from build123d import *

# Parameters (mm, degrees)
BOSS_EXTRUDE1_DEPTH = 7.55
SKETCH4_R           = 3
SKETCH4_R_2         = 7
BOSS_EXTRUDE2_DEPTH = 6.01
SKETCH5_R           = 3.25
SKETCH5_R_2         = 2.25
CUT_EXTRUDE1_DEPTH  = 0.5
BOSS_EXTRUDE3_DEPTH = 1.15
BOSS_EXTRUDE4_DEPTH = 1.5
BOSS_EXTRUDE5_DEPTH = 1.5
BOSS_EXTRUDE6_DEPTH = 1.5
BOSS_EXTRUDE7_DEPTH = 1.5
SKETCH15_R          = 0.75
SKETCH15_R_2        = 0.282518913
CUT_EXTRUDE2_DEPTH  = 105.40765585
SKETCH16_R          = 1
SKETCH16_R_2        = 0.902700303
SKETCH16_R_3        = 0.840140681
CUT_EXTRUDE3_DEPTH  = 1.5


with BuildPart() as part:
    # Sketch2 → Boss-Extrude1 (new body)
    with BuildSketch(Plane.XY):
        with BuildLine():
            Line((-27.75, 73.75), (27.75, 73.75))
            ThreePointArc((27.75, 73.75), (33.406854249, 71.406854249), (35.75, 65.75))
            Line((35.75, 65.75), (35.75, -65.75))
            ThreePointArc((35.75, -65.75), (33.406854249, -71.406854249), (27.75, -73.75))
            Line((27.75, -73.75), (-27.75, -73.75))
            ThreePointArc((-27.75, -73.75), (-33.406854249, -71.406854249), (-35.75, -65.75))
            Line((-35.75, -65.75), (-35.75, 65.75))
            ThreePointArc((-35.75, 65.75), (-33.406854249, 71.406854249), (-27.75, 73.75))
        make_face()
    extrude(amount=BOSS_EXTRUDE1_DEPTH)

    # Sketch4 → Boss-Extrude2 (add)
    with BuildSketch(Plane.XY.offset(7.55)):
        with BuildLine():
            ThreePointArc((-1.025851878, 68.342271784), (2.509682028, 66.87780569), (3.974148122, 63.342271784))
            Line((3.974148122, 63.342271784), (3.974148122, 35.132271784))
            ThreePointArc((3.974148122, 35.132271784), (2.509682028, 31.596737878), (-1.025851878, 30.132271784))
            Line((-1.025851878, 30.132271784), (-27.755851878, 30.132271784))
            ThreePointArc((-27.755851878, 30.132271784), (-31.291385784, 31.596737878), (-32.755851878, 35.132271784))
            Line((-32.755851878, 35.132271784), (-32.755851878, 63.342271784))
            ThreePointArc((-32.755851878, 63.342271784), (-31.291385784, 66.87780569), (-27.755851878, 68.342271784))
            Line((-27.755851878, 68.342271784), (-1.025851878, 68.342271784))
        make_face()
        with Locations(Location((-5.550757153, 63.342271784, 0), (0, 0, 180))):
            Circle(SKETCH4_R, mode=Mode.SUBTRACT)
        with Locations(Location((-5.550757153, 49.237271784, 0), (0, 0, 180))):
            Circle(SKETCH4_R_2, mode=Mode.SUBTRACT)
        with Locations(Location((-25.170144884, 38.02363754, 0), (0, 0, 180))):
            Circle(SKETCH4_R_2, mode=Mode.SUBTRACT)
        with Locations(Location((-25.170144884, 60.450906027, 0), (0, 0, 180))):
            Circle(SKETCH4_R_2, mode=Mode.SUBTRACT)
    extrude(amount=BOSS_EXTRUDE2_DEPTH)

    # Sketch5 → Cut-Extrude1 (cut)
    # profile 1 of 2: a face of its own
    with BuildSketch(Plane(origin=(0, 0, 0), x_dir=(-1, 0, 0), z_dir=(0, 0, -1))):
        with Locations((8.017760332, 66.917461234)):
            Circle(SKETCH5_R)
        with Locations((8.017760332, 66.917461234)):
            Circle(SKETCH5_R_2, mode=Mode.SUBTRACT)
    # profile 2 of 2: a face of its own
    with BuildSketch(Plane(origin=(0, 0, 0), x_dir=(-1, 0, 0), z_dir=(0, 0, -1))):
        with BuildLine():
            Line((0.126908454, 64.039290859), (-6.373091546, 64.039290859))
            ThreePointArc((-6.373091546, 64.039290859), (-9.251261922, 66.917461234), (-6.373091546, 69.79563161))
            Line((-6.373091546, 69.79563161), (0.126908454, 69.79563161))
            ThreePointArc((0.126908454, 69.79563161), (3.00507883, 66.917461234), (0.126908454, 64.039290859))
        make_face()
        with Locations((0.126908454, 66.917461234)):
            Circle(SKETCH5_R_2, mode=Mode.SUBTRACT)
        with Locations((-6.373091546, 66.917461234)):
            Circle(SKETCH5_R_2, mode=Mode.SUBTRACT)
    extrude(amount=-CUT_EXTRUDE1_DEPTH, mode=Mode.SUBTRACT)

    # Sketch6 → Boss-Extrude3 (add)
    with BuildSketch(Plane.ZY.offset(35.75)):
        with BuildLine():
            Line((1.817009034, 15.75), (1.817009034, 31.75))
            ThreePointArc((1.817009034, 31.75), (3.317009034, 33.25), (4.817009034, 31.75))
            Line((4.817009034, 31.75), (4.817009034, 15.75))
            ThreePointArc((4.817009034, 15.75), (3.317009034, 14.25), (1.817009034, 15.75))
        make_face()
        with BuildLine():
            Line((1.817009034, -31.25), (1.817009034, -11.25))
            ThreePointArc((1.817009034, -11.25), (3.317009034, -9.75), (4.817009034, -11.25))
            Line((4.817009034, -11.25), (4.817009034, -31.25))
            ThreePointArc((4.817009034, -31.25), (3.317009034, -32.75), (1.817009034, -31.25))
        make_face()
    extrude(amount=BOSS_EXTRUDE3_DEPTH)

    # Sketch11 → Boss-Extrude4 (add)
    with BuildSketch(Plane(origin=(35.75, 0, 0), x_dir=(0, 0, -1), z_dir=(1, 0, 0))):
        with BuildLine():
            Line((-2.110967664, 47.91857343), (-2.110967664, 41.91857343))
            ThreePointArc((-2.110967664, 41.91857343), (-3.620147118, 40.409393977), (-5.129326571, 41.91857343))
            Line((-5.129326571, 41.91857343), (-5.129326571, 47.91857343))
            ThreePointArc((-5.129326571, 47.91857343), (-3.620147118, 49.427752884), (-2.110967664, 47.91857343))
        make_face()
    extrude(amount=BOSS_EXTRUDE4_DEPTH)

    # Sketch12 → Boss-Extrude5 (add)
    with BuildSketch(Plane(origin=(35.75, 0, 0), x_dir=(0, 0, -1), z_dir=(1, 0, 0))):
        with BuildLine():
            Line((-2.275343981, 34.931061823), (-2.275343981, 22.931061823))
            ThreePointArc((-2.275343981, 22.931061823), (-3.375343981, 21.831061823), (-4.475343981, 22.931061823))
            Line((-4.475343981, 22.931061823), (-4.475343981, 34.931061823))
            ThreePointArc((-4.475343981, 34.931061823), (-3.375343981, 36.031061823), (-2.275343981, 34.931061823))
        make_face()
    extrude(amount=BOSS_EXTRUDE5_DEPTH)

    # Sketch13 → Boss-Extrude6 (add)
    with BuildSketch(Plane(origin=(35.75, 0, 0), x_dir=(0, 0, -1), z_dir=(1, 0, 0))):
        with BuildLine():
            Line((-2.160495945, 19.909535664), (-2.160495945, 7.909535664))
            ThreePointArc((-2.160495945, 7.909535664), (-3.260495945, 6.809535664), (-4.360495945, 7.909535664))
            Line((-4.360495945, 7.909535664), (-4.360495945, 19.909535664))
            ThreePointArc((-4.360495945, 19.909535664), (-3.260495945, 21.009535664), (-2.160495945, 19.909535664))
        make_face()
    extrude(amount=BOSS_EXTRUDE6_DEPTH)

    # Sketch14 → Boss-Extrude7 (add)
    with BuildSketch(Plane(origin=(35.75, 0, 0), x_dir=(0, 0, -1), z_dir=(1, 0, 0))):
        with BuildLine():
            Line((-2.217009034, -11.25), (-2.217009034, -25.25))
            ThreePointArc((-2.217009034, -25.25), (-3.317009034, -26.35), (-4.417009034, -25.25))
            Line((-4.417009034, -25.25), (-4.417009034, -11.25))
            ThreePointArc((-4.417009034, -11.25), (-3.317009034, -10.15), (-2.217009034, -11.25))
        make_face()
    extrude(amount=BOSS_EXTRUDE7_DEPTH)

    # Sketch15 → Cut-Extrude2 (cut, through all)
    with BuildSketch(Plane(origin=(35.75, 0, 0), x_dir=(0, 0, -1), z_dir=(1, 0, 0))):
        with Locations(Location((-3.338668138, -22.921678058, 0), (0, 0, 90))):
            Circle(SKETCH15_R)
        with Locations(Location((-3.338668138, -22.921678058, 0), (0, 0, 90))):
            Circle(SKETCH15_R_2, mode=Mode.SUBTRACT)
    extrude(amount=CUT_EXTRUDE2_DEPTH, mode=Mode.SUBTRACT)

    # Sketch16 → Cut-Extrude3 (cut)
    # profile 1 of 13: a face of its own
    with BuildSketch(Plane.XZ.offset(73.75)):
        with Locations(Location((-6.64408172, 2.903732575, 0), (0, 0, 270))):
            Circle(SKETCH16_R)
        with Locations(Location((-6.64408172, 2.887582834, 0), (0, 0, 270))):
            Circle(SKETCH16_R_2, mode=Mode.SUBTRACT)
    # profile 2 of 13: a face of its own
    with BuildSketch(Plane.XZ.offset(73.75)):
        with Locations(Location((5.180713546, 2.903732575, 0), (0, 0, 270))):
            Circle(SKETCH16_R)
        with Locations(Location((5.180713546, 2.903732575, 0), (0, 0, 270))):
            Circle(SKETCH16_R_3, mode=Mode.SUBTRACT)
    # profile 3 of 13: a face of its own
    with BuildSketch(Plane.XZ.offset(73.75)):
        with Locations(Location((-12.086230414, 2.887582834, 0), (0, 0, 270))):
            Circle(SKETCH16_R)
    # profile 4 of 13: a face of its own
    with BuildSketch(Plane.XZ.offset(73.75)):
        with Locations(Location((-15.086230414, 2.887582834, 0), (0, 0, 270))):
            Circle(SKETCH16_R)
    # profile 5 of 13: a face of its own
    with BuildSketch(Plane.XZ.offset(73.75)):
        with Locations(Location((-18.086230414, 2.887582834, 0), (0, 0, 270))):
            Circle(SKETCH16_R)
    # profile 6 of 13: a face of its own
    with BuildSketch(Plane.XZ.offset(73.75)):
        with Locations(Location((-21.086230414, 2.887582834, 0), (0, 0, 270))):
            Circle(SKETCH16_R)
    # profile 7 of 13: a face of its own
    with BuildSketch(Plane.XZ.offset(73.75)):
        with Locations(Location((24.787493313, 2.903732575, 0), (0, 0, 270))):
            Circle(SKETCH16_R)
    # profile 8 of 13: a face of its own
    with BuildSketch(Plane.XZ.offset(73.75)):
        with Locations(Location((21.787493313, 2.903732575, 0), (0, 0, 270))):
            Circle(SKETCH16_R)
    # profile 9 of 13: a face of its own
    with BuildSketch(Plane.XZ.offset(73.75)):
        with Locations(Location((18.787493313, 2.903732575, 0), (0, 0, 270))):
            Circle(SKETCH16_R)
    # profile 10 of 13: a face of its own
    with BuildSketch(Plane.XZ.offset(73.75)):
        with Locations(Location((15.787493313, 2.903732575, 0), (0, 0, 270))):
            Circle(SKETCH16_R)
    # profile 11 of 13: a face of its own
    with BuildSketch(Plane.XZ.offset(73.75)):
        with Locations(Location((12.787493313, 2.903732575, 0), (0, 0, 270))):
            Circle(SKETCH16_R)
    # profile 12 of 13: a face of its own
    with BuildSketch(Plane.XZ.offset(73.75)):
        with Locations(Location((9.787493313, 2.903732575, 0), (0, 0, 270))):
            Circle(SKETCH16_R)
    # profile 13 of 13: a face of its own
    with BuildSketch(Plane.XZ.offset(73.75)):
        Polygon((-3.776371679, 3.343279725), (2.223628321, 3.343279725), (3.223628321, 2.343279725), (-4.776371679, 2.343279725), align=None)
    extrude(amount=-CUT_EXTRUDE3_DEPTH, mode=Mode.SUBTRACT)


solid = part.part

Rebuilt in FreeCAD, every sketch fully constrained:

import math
import FreeCAD as App
import Part
import Sketcher

V = App.Vector

doc = App.newDocument("Part")
body = doc.addObject("PartDesign::Body", "Body")

# Sketch on XY plane
sketch1 = body.newObject("Sketcher::SketchObject", "Sketch")
sketch1.AttachmentSupport = (doc.getObject("XY_Plane"), [""])
sketch1.MapMode = "FlatFace"
sketch1.addGeometry([
    Part.LineSegment(V(27.75, 73.75, 0), V(-27.75, 73.75, 0)),  # 0
    Part.ArcOfCircle(Part.Circle(V(-27.75, 65.75, 0), V(0, 0, 1), 8), math.radians(90), math.radians(180)),  # 1
    Part.LineSegment(V(-35.75, 65.75, 0), V(-35.75, -65.75, 0)),  # 2
    Part.ArcOfCircle(Part.Circle(V(-27.75, -65.75, 0), V(0, 0, 1), 8), math.radians(-180), math.radians(-90)),  # 3
    Part.LineSegment(V(-27.75, -73.75, 0), V(27.75, -73.75, 0)),  # 4
    Part.ArcOfCircle(Part.Circle(V(27.75, -65.75, 0), V(0, 0, 1), 8), math.radians(-90), math.radians(0)),  # 5
    Part.LineSegment(V(35.75, -65.75, 0), V(35.75, 65.75, 0)),  # 6
    Part.ArcOfCircle(Part.Circle(V(27.75, 65.75, 0), V(0, 0, 1), 8), math.radians(0), math.radians(90)),  # 7
], False)
sketch1.addConstraint([
    Sketcher.Constraint("Tangent", 0, 2, 1, 1),
    Sketcher.Constraint("Tangent", 1, 2, 2, 1),
    Sketcher.Constraint("Tangent", 2, 2, 3, 1),
    Sketcher.Constraint("Tangent", 3, 2, 4, 1),
    Sketcher.Constraint("Tangent", 4, 2, 5, 1),
    Sketcher.Constraint("Tangent", 5, 2, 6, 1),
    Sketcher.Constraint("Tangent", 6, 2, 7, 1),
    Sketcher.Constraint("Tangent", 7, 2, 0, 1),
    Sketcher.Constraint("Horizontal", 0),
    Sketcher.Constraint("Vertical", 2),
    Sketcher.Constraint("Horizontal", 4),
    Sketcher.Constraint("Vertical", 6),
    Sketcher.Constraint("Equal", 1, 3),
    Sketcher.Constraint("Equal", 3, 5),
    Sketcher.Constraint("Equal", 5, 7),
    Sketcher.Constraint("Symmetric", 1, 3, 5, 3, -1, 1),
    Sketcher.Constraint("Radius", 1, 8.0),
    Sketcher.Constraint("DistanceX", 0, 2, 0, 1, 55.5),
    Sketcher.Constraint("DistanceY", 2, 2, 2, 1, 131.5),
])
pad1 = body.newObject("PartDesign::Pad", "Pad")
pad1.Profile = sketch1
pad1.Length = 7.55

# Sketch on XY plane
sketch2 = body.newObject("Sketcher::SketchObject", "Sketch001")
sketch2.AttachmentSupport = (doc.getObject("XY_Plane"), [""])
sketch2.MapMode = "FlatFace"
sketch2.AttachmentOffset = App.Placement(V(0, 0, 7.55), App.Rotation())
sketch2.addGeometry([
    Part.ArcOfCircle(Part.Circle(V(-1.025852, 63.342272, 0), V(0, 0, 1), 5), math.radians(0), math.radians(90)),  # 0
    Part.LineSegment(V(-1.025852, 68.342272, 0), V(-27.755852, 68.342272, 0)),  # 1
    Part.ArcOfCircle(Part.Circle(V(-27.755852, 63.342272, 0), V(0, 0, 1), 5), math.radians(90), math.radians(180)),  # 2
    Part.LineSegment(V(-32.755852, 63.342272, 0), V(-32.755852, 35.132272, 0)),  # 3
    Part.ArcOfCircle(Part.Circle(V(-27.755852, 35.132272, 0), V(0, 0, 1), 5), math.radians(180), math.radians(270)),  # 4
    Part.LineSegment(V(-27.755852, 30.132272, 0), V(-1.025852, 30.132272, 0)),  # 5
    Part.ArcOfCircle(Part.Circle(V(-1.025852, 35.132272, 0), V(0, 0, 1), 5), math.radians(-90), math.radians(0)),  # 6
    Part.LineSegment(V(3.974148, 35.132272, 0), V(3.974148, 63.342272, 0)),  # 7
    Part.Circle(V(-25.170145, 38.023638, 0), V(0, 0, 1), 7),  # 8
    Part.Circle(V(-5.550757, 49.237272, 0), V(0, 0, 1), 7),  # 9
    Part.Circle(V(-5.550757, 63.342272, 0), V(0, 0, 1), 3),  # 10
    Part.Circle(V(-25.170145, 60.450906, 0), V(0, 0, 1), 7),  # 11
], False)
sketch2.addConstraint([
    Sketcher.Constraint("Tangent", 0, 2, 1, 1),
    Sketcher.Constraint("Tangent", 1, 2, 2, 1),
    Sketcher.Constraint("Tangent", 2, 2, 3, 1),
    Sketcher.Constraint("Tangent", 3, 2, 4, 1),
    Sketcher.Constraint("Tangent", 4, 2, 5, 1),
    Sketcher.Constraint("Tangent", 5, 2, 6, 1),
    Sketcher.Constraint("Tangent", 6, 2, 7, 1),
    Sketcher.Constraint("Tangent", 7, 2, 0, 1),
    Sketcher.Constraint("Horizontal", 1),
    Sketcher.Constraint("Vertical", 3),
    Sketcher.Constraint("Horizontal", 5),
    Sketcher.Constraint("Vertical", 7),
    Sketcher.Constraint("Equal", 0, 2),
    Sketcher.Constraint("Equal", 2, 4),
    Sketcher.Constraint("Equal", 4, 6),
    Sketcher.Constraint("Equal", 8, 9),
    Sketcher.Constraint("Equal", 9, 11),
    Sketcher.Constraint("Horizontal", 2, 3, 10, 3),
    Sketcher.Constraint("Vertical", 9, 3, 10, 3),
    Sketcher.Constraint("Vertical", 8, 3, 11, 3),
    Sketcher.Constraint("Diameter", 8, 14.0),
    Sketcher.Constraint("Diameter", 10, 6.0),
    Sketcher.Constraint("Radius", 0, 5.0),
    Sketcher.Constraint("DistanceX", 1, 2, 1, 1, 26.73),
    Sketcher.Constraint("DistanceY", 3, 2, 3, 1, 28.21),
    Sketcher.Constraint("DistanceY", 9, 3, 0, 3, 14.105),
    Sketcher.Constraint("DistanceX", 0, 3, -1, 1, 1.025852),
    Sketcher.Constraint("DistanceY", -1, 1, 0, 3, 63.342272),
    Sketcher.Constraint("DistanceY", 8, 3, 11, 3, 22.427268),
    Sketcher.Constraint("DistanceX", 8, 3, -1, 1, 25.170145),
    Sketcher.Constraint("DistanceY", -1, 1, 8, 3, 38.023638),
    Sketcher.Constraint("DistanceX", 9, 3, -1, 1, 5.550757),
])
pad2 = body.newObject("PartDesign::Pad", "Pad001")
pad2.Profile = sketch2
pad2.Length = 6.01

# Sketch on XY plane
sketch3 = body.newObject("Sketcher::SketchObject", "Sketch002")
sketch3.AttachmentSupport = (doc.getObject("XY_Plane"), [""])
sketch3.MapMode = "FlatFace"
sketch3.addGeometry([
    Part.Circle(V(-8.01776, 66.917461, 0), V(0, 0, 1), 3.25),  # 0
    Part.Circle(V(-8.01776, 66.917461, 0), V(0, 0, 1), 2.25),  # 1
    Part.LineSegment(V(6.373092, 64.039291, 0), V(-0.126908, 64.039291, 0)),  # 2
    Part.ArcOfCircle(Part.Circle(V(-0.126908, 66.917461, 0), V(0, 0, 1), 2.87817), math.radians(90), math.radians(270)),  # 3
    Part.LineSegment(V(-0.126908, 69.795632, 0), V(6.373092, 69.795632, 0)),  # 4
    Part.ArcOfCircle(Part.Circle(V(6.373092, 66.917461, 0), V(0, 0, 1), 2.87817), math.radians(-90), math.radians(90)),  # 5
    Part.Circle(V(-0.126908, 66.917461, 0), V(0, 0, 1), 2.25),  # 6
    Part.Circle(V(6.373092, 66.917461, 0), V(0, 0, 1), 2.25),  # 7
], False)
sketch3.addConstraint([
    Sketcher.Constraint("Tangent", 2, 2, 3, 2),
    Sketcher.Constraint("Tangent", 3, 1, 4, 1),
    Sketcher.Constraint("Tangent", 4, 2, 5, 2),
    Sketcher.Constraint("Tangent", 5, 1, 2, 1),
    Sketcher.Constraint("Horizontal", 2),
    Sketcher.Constraint("Horizontal", 4),
    Sketcher.Constraint("Coincident", 1, 3, 0, 3),
    Sketcher.Constraint("Coincident", 6, 3, 3, 3),
    Sketcher.Constraint("Coincident", 7, 3, 5, 3),
    Sketcher.Constraint("Equal", 1, 6),
    Sketcher.Constraint("Equal", 6, 7),
    Sketcher.Constraint("Horizontal", 1, 3, 3, 3),
    Sketcher.Constraint("Diameter", 0, 6.5),
    Sketcher.Constraint("Diameter", 1, 4.5),
    Sketcher.Constraint("DistanceX", 2, 2, 2, 1, 6.5),
    Sketcher.Constraint("Radius", 3, 2.87817),
    Sketcher.Constraint("DistanceX", 0, 3, -1, 1, 8.01776),
    Sketcher.Constraint("DistanceY", -1, 1, 0, 3, 66.917461),
    Sketcher.Constraint("DistanceX", 3, 3, -1, 1, 0.126908),
])
pocket1 = body.newObject("PartDesign::Pocket", "Pocket")
pocket1.Profile = sketch3
pocket1.Length = 0.5
pocket1.Reversed = True

# Sketch on YZ plane
sketch4 = body.newObject("Sketcher::SketchObject", "Sketch003")
sketch4.AttachmentSupport = (doc.getObject("YZ_Plane"), [""])
sketch4.MapMode = "FlatFace"
sketch4.AttachmentOffset = App.Placement(V(0, 0, -35.75), App.Rotation())
sketch4.addGeometry([
    Part.LineSegment(V(31.75, 1.817009, 0), V(15.75, 1.817009, 0)),  # 0
    Part.ArcOfCircle(Part.Circle(V(15.75, 3.317009, 0), V(0, 0, 1), 1.5), math.radians(90), math.radians(270)),  # 1
    Part.LineSegment(V(15.75, 4.817009, 0), V(31.75, 4.817009, 0)),  # 2
    Part.ArcOfCircle(Part.Circle(V(31.75, 3.317009, 0), V(0, 0, 1), 1.5), math.radians(-90), math.radians(90)),  # 3
    Part.LineSegment(V(-11.25, 1.817009, 0), V(-31.25, 1.817009, 0)),  # 4
    Part.ArcOfCircle(Part.Circle(V(-31.25, 3.317009, 0), V(0, 0, 1), 1.5), math.radians(90), math.radians(270)),  # 5
    Part.LineSegment(V(-31.25, 4.817009, 0), V(-11.25, 4.817009, 0)),  # 6
    Part.ArcOfCircle(Part.Circle(V(-11.25, 3.317009, 0), V(0, 0, 1), 1.5), math.radians(-90), math.radians(90)),  # 7
], False)
sketch4.addConstraint([
    Sketcher.Constraint("Tangent", 0, 2, 1, 2),
    Sketcher.Constraint("Tangent", 1, 1, 2, 1),
    Sketcher.Constraint("Tangent", 2, 2, 3, 2),
    Sketcher.Constraint("Tangent", 3, 1, 0, 1),
    Sketcher.Constraint("Tangent", 4, 2, 5, 2),
    Sketcher.Constraint("Tangent", 5, 1, 6, 1),
    Sketcher.Constraint("Tangent", 6, 2, 7, 2),
    Sketcher.Constraint("Tangent", 7, 1, 4, 1),
    Sketcher.Constraint("Horizontal", 0),
    Sketcher.Constraint("Horizontal", 2),
    Sketcher.Constraint("Horizontal", 4),
    Sketcher.Constraint("Horizontal", 6),
    Sketcher.Constraint("Equal", 3, 5),
    Sketcher.Constraint("Horizontal", 3, 3, 5, 3),
    Sketcher.Constraint("Radius", 1, 1.5),
    Sketcher.Constraint("DistanceX", 0, 2, 0, 1, 16.0),
    Sketcher.Constraint("DistanceX", 4, 2, 4, 1, 20.0),
    Sketcher.Constraint("DistanceX", 5, 3, 1, 3, 47.0),
    Sketcher.Constraint("DistanceX", -1, 1, 1, 3, 15.75),
    Sketcher.Constraint("DistanceY", -1, 1, 1, 3, 3.317009),
])
pad3 = body.newObject("PartDesign::Pad", "Pad002")
pad3.Profile = sketch4
pad3.Length = 1.15
pad3.Reversed = True

# Sketch on YZ plane
sketch5 = body.newObject("Sketcher::SketchObject", "Sketch004")
sketch5.AttachmentSupport = (doc.getObject("YZ_Plane"), [""])
sketch5.MapMode = "FlatFace"
sketch5.AttachmentOffset = App.Placement(V(0, 0, 35.75), App.Rotation())
sketch5.addGeometry([
    Part.LineSegment(V(41.918573, 2.110968, 0), V(47.918573, 2.110968, 0)),
    Part.ArcOfCircle(Part.Circle(V(47.918573, 3.620147, 0), V(0, 0, 1), 1.509179), math.radians(-90), math.radians(90)),
    Part.LineSegment(V(47.918573, 5.129327, 0), V(41.918573, 5.129327, 0)),
    Part.ArcOfCircle(Part.Circle(V(41.918573, 3.620147, 0), V(0, 0, 1), 1.509179), math.radians(90), math.radians(270)),
], False)
sketch5.addConstraint([
    Sketcher.Constraint("Tangent", 0, 2, 1, 1),
    Sketcher.Constraint("Tangent", 1, 2, 2, 1),
    Sketcher.Constraint("Tangent", 2, 2, 3, 1),
    Sketcher.Constraint("Tangent", 3, 2, 0, 1),
    Sketcher.Constraint("Horizontal", 0),
    Sketcher.Constraint("Horizontal", 2),
    Sketcher.Constraint("DistanceX", 0, 1, 0, 2, 6.0),
    Sketcher.Constraint("Radius", 1, 1.509179),
    Sketcher.Constraint("DistanceX", -1, 1, 1, 3, 47.918573),
    Sketcher.Constraint("DistanceY", -1, 1, 1, 3, 3.620147),
])
pad4 = body.newObject("PartDesign::Pad", "Pad003")
pad4.Profile = sketch5
pad4.Length = 1.5

# Sketch on YZ plane
sketch6 = body.newObject("Sketcher::SketchObject", "Sketch005")
sketch6.AttachmentSupport = (doc.getObject("YZ_Plane"), [""])
sketch6.MapMode = "FlatFace"
sketch6.AttachmentOffset = App.Placement(V(0, 0, 35.75), App.Rotation())
sketch6.addGeometry([
    Part.LineSegment(V(22.931062, 2.275344, 0), V(34.931062, 2.275344, 0)),
    Part.ArcOfCircle(Part.Circle(V(34.931062, 3.375344, 0), V(0, 0, 1), 1.1), math.radians(-90), math.radians(90)),
    Part.LineSegment(V(34.931062, 4.475344, 0), V(22.931062, 4.475344, 0)),
    Part.ArcOfCircle(Part.Circle(V(22.931062, 3.375344, 0), V(0, 0, 1), 1.1), math.radians(90), math.radians(270)),
], False)
sketch6.addConstraint([
    Sketcher.Constraint("Tangent", 0, 2, 1, 1),
    Sketcher.Constraint("Tangent", 1, 2, 2, 1),
    Sketcher.Constraint("Tangent", 2, 2, 3, 1),
    Sketcher.Constraint("Tangent", 3, 2, 0, 1),
    Sketcher.Constraint("Horizontal", 0),
    Sketcher.Constraint("Horizontal", 2),
    Sketcher.Constraint("Radius", 1, 1.1),
    Sketcher.Constraint("DistanceX", 0, 1, 0, 2, 12.0),
    Sketcher.Constraint("DistanceX", -1, 1, 1, 3, 34.931062),
    Sketcher.Constraint("DistanceY", -1, 1, 1, 3, 3.375344),
])
pad5 = body.newObject("PartDesign::Pad", "Pad004")
pad5.Profile = sketch6
pad5.Length = 1.5

# Sketch on YZ plane
sketch7 = body.newObject("Sketcher::SketchObject", "Sketch006")
sketch7.AttachmentSupport = (doc.getObject("YZ_Plane"), [""])
sketch7.MapMode = "FlatFace"
sketch7.AttachmentOffset = App.Placement(V(0, 0, 35.75), App.Rotation())
sketch7.addGeometry([
    Part.LineSegment(V(7.909536, 2.160496, 0), V(19.909536, 2.160496, 0)),
    Part.ArcOfCircle(Part.Circle(V(19.909536, 3.260496, 0), V(0, 0, 1), 1.1), math.radians(-90), math.radians(90)),
    Part.LineSegment(V(19.909536, 4.360496, 0), V(7.909536, 4.360496, 0)),
    Part.ArcOfCircle(Part.Circle(V(7.909536, 3.260496, 0), V(0, 0, 1), 1.1), math.radians(90), math.radians(270)),
], False)
sketch7.addConstraint([
    Sketcher.Constraint("Tangent", 0, 2, 1, 1),
    Sketcher.Constraint("Tangent", 1, 2, 2, 1),
    Sketcher.Constraint("Tangent", 2, 2, 3, 1),
    Sketcher.Constraint("Tangent", 3, 2, 0, 1),
    Sketcher.Constraint("Horizontal", 0),
    Sketcher.Constraint("Horizontal", 2),
    Sketcher.Constraint("Radius", 1, 1.1),
    Sketcher.Constraint("DistanceX", 0, 1, 0, 2, 12.0),
    Sketcher.Constraint("DistanceX", -1, 1, 1, 3, 19.909536),
    Sketcher.Constraint("DistanceY", -1, 1, 1, 3, 3.260496),
])
pad6 = body.newObject("PartDesign::Pad", "Pad005")
pad6.Profile = sketch7
pad6.Length = 1.5

# Sketch on YZ plane
sketch8 = body.newObject("Sketcher::SketchObject", "Sketch007")
sketch8.AttachmentSupport = (doc.getObject("YZ_Plane"), [""])
sketch8.MapMode = "FlatFace"
sketch8.AttachmentOffset = App.Placement(V(0, 0, 35.75), App.Rotation())
sketch8.addGeometry([
    Part.LineSegment(V(-25.25, 2.217009, 0), V(-11.25, 2.217009, 0)),
    Part.ArcOfCircle(Part.Circle(V(-11.25, 3.317009, 0), V(0, 0, 1), 1.1), math.radians(-90), math.radians(90)),
    Part.LineSegment(V(-11.25, 4.417009, 0), V(-25.25, 4.417009, 0)),
    Part.ArcOfCircle(Part.Circle(V(-25.25, 3.317009, 0), V(0, 0, 1), 1.1), math.radians(90), math.radians(270)),
], False)
sketch8.addConstraint([
    Sketcher.Constraint("Tangent", 0, 2, 1, 1),
    Sketcher.Constraint("Tangent", 1, 2, 2, 1),
    Sketcher.Constraint("Tangent", 2, 2, 3, 1),
    Sketcher.Constraint("Tangent", 3, 2, 0, 1),
    Sketcher.Constraint("Horizontal", 0),
    Sketcher.Constraint("Horizontal", 2),
    Sketcher.Constraint("Radius", 1, 1.1),
    Sketcher.Constraint("DistanceX", 0, 1, 0, 2, 14.0),
    Sketcher.Constraint("DistanceX", 1, 3, -1, 1, 11.25),
    Sketcher.Constraint("DistanceY", -1, 1, 1, 3, 3.317009),
])
pad7 = body.newObject("PartDesign::Pad", "Pad006")
pad7.Profile = sketch8
pad7.Length = 1.5

# Sketch on YZ plane
sketch9 = body.newObject("Sketcher::SketchObject", "Sketch008")
sketch9.AttachmentSupport = (doc.getObject("YZ_Plane"), [""])
sketch9.MapMode = "FlatFace"
sketch9.AttachmentOffset = App.Placement(V(0, 0, 35.75), App.Rotation())
sketch9.addGeometry([
    Part.Circle(V(-22.921678, 3.338668, 0), V(0, 0, 1), 0.75),
    Part.Circle(V(-22.921678, 3.338668, 0), V(0, 0, 1), 0.282519),
], False)
sketch9.addConstraint([
    Sketcher.Constraint("Coincident", 1, 3, 0, 3),
    Sketcher.Constraint("Diameter", 0, 1.5),
    Sketcher.Constraint("Diameter", 1, 0.565038),
    Sketcher.Constraint("DistanceX", 0, 3, -1, 1, 22.921678),
    Sketcher.Constraint("DistanceY", -1, 1, 0, 3, 3.338668),
])
pocket2 = body.newObject("PartDesign::Pocket", "Pocket001")
pocket2.Profile = sketch9
pocket2.Type = "ThroughAll"
pocket2.Reversed = True

# Sketch on XZ plane
sketch10 = body.newObject("Sketcher::SketchObject", "Sketch009")
sketch10.AttachmentSupport = (doc.getObject("XZ_Plane"), [""])
sketch10.MapMode = "FlatFace"
sketch10.AttachmentOffset = App.Placement(V(0, 0, 73.75), App.Rotation())
sketch10.addGeometry([
    Part.Circle(V(-6.644082, 2.903733, 0), V(0, 0, 1), 1),  # 0
    Part.Circle(V(-6.644082, 2.887583, 0), V(0, 0, 1), 0.9027),  # 1
    Part.Circle(V(5.180714, 2.903733, 0), V(0, 0, 1), 1),  # 2
    Part.Circle(V(5.180714, 2.903733, 0), V(0, 0, 1), 0.840141),  # 3
    Part.Circle(V(-12.08623, 2.887583, 0), V(0, 0, 1), 1),  # 4
    Part.Circle(V(-15.08623, 2.887583, 0), V(0, 0, 1), 1),  # 5
    Part.Circle(V(-18.08623, 2.887583, 0), V(0, 0, 1), 1),  # 6
    Part.Circle(V(-21.08623, 2.887583, 0), V(0, 0, 1), 1),  # 7
    Part.Circle(V(24.787493, 2.903733, 0), V(0, 0, 1), 1),  # 8
    Part.Circle(V(21.787493, 2.903733, 0), V(0, 0, 1), 1),  # 9
    Part.Circle(V(18.787493, 2.903733, 0), V(0, 0, 1), 1),  # 10
    Part.Circle(V(15.787493, 2.903733, 0), V(0, 0, 1), 1),  # 11
    Part.Circle(V(12.787493, 2.903733, 0), V(0, 0, 1), 1),  # 12
    Part.Circle(V(9.787493, 2.903733, 0), V(0, 0, 1), 1),  # 13
    Part.LineSegment(V(2.223628, 3.34328, 0), V(-3.776372, 3.34328, 0)),  # 14
    Part.LineSegment(V(-3.776372, 3.34328, 0), V(-4.776372, 2.34328, 0)),  # 15
    Part.LineSegment(V(-4.776372, 2.34328, 0), V(3.223628, 2.34328, 0)),  # 16
    Part.LineSegment(V(3.223628, 2.34328, 0), V(2.223628, 3.34328, 0)),  # 17
], False)
sketch10.addConstraint([
    Sketcher.Constraint("Coincident", 14, 2, 15, 1),
    Sketcher.Constraint("Coincident", 15, 2, 16, 1),
    Sketcher.Constraint("Coincident", 16, 2, 17, 1),
    Sketcher.Constraint("Coincident", 17, 2, 14, 1),
    Sketcher.Constraint("Horizontal", 14),
    Sketcher.Constraint("Horizontal", 16),
    Sketcher.Constraint("Coincident", 3, 3, 2, 3),
    Sketcher.Constraint("Equal", 0, 2),
    Sketcher.Constraint("Equal", 2, 4),
    Sketcher.Constraint("Equal", 4, 5),
    Sketcher.Constraint("Equal", 5, 6),
    Sketcher.Constraint("Equal", 6, 7),
    Sketcher.Constraint("Equal", 7, 8),
    Sketcher.Constraint("Equal", 8, 9),
    Sketcher.Constraint("Equal", 9, 10),
    Sketcher.Constraint("Equal", 10, 11),
    Sketcher.Constraint("Equal", 11, 12),
    Sketcher.Constraint("Equal", 12, 13),
    Sketcher.Constraint("Perpendicular", 15, 17),
    Sketcher.Constraint("Horizontal", 0, 3, 2, 3),
    Sketcher.Constraint("Horizontal", 1, 3, 4, 3),
    Sketcher.Constraint("Horizontal", 4, 3, 5, 3),
    Sketcher.Constraint("Horizontal", 5, 3, 6, 3),
    Sketcher.Constraint("Horizontal", 6, 3, 7, 3),
    Sketcher.Constraint("Horizontal", 3, 3, 8, 3),
    Sketcher.Constraint("Horizontal", 8, 3, 9, 3),
    Sketcher.Constraint("Horizontal", 9, 3, 10, 3),
    Sketcher.Constraint("Horizontal", 10, 3, 11, 3),
    Sketcher.Constraint("Horizontal", 11, 3, 12, 3),
    Sketcher.Constraint("Horizontal", 12, 3, 13, 3),
    Sketcher.Constraint("Vertical", 0, 3, 1, 3),
    Sketcher.Constraint("Equal", 15, 17),
    Sketcher.Constraint("Diameter", 0, 2.0),
    Sketcher.Constraint("DistanceX", 14, 2, 14, 1, 6.0),
    Sketcher.Constraint("DistanceX", 16, 1, 16, 2, 8.0),
    Sketcher.Constraint("DistanceX", 5, 3, 4, 3, 3.0),
    Sketcher.Constraint("DistanceX", 6, 3, 5, 3, 3.0),
    Sketcher.Constraint("DistanceX", 7, 3, 6, 3, 3.0),
    Sketcher.Constraint("DistanceX", 9, 3, 8, 3, 3.0),
    Sketcher.Constraint("DistanceX", 10, 3, 9, 3, 3.0),
    Sketcher.Constraint("DistanceX", 11, 3, 10, 3, 3.0),
    Sketcher.Constraint("DistanceX", 12, 3, 11, 3, 3.0),
    Sketcher.Constraint("DistanceX", 13, 3, 12, 3, 3.0),
    Sketcher.Constraint("Diameter", 1, 1.805401),
    Sketcher.Constraint("Diameter", 3, 1.680281),
    Sketcher.Constraint("DistanceX", 0, 3, -1, 1, 6.644082),
    Sketcher.Constraint("DistanceX", 4, 3, -1, 1, 12.08623),
    Sketcher.Constraint("DistanceX", 14, 2, -1, 1, 3.776372),
    Sketcher.Constraint("DistanceY", -1, 1, 14, 2, 3.34328),
    Sketcher.Constraint("DistanceY", 1, 3, 0, 3, 0.01615),
    Sketcher.Constraint("DistanceX", 2, 3, 8, 3, 19.60678),
    Sketcher.Constraint("DistanceY", -1, 1, 0, 3, 2.903733),
    Sketcher.Constraint("DistanceX", -1, 1, 2, 3, 5.180714),
])
pocket3 = body.newObject("PartDesign::Pocket", "Pocket002")
pocket3.Profile = sketch10
pocket3.Length = 1.5

doc.recompute()
